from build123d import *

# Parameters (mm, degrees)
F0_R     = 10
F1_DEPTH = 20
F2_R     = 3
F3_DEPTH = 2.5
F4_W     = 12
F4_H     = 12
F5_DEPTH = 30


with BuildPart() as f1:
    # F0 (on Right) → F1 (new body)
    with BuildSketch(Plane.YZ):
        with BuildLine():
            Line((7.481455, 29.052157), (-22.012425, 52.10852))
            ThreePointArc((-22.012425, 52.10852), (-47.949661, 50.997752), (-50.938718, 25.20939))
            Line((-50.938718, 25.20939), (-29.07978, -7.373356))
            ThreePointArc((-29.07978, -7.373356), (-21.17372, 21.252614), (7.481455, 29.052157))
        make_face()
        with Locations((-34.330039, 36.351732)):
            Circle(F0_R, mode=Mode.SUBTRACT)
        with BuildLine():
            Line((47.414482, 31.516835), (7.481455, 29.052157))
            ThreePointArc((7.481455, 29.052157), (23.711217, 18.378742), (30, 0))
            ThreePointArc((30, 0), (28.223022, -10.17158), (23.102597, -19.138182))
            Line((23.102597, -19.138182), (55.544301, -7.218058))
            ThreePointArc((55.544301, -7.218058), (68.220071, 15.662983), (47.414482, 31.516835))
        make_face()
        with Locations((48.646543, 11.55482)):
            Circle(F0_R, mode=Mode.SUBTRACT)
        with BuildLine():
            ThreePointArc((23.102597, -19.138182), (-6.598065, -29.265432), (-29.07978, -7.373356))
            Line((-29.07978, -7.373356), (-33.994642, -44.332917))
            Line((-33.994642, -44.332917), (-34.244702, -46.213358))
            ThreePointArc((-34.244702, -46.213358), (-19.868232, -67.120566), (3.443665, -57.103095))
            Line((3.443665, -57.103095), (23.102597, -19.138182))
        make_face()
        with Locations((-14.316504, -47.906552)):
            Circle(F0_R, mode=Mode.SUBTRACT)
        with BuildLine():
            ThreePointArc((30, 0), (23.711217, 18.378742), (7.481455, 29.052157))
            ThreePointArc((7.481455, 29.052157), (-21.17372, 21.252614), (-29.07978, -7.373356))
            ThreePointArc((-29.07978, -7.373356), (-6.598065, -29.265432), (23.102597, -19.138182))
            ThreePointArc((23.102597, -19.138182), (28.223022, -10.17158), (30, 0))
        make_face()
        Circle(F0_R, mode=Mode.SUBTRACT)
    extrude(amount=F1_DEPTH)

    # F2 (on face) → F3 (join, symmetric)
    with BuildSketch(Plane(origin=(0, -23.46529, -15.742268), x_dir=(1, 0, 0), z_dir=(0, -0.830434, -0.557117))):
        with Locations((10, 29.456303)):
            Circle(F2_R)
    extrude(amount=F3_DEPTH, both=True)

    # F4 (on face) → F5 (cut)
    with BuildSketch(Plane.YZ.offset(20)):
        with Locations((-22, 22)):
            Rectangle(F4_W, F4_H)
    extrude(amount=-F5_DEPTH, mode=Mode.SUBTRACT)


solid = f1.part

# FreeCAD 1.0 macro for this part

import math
import FreeCAD as App
import Part
import Sketcher
from FreeCAD import Vector
Q = App.Units.Quantity

doc = App.newDocument("Part")
body = doc.addObject("PartDesign::Body", "Body")

# Sketch on YZ plane
sketch1 = body.newObject("Sketcher::SketchObject", "Sketch")
sketch1.AttachmentSupport = (doc.getObject("YZ_Plane"), [""])
sketch1.MapMode = "FlatFace"
sketch1.addGeometry(Part.LineSegment(Vector(7.5, 29.1, 0), Vector(-22, 52.1, 0)), False)
sketch1.addGeometry(Part.ArcOfCircle(Part.Circle(Vector(-34.3, 36.4, 0), Vector(0, 0, 1), 20), math.radians(52), math.radians(214)), False)
sketch1.addGeometry(Part.LineSegment(Vector(-50.9, 25.2, 0), Vector(-29.1, -7.4, 0)), False)
sketch1.addGeometry(Part.LineSegment(Vector(-29.1, -7.4, 0), Vector(-34, -44.3, 0)), False)
sketch1.addGeometry(Part.LineSegment(Vector(-34, -44.3, 0), Vector(-34.2, -46.2, 0)), False)
sketch1.addGeometry(Part.ArcOfCircle(Part.Circle(Vector(-14.3, -47.9, 0), Vector(0, 0, 1), 20), math.radians(175), math.radians(333)), False)
sketch1.addGeometry(Part.LineSegment(Vector(3.4, -57.1, 0), Vector(23.1, -19.1, 0)), False)
sketch1.addGeometry(Part.LineSegment(Vector(23.1, -19.1, 0), Vector(55.5, -7.2, 0)), False)
sketch1.addGeometry(Part.ArcOfCircle(Part.Circle(Vector(48.6, 11.6, 0), Vector(0, 0, 1), 20), math.radians(-70), math.radians(94)), False)
sketch1.addGeometry(Part.LineSegment(Vector(47.4, 31.5, 0), Vector(7.5, 29.1, 0)), False)
sketch1.addGeometry(Part.Circle(Vector(-14.3, -47.9, 0), Vector(0, 0, 1), 10), False)
sketch1.addGeometry(Part.Circle(Vector(0, 0, 0), Vector(0, 0, 1), 10), False)
sketch1.addGeometry(Part.Circle(Vector(-34.3, 36.4, 0), Vector(0, 0, 1), 10), False)
sketch1.addGeometry(Part.Circle(Vector(48.6, 11.6, 0), Vector(0, 0, 1), 10), False)
sketch1.addConstraint(Sketcher.Constraint("Tangent", 0, 2, 1, 1))
sketch1.addConstraint(Sketcher.Constraint("Tangent", 1, 2, 2, 1))
sketch1.addConstraint(Sketcher.Constraint("Coincident", 2, 2, 3, 1))
sketch1.addConstraint(Sketcher.Constraint("Coincident", 3, 2, 4, 1))
sketch1.addConstraint(Sketcher.Constraint("Coincident", 4, 2, 5, 1))
sketch1.addConstraint(Sketcher.Constraint("Tangent", 5, 2, 6, 1))
sketch1.addConstraint(Sketcher.Constraint("Coincident", 6, 2, 7, 1))
sketch1.addConstraint(Sketcher.Constraint("Tangent", 7, 2, 8, 1))
sketch1.addConstraint(Sketcher.Constraint("Tangent", 8, 2, 9, 1))
sketch1.addConstraint(Sketcher.Constraint("Coincident", 9, 2, 0, 1))
sketch1.addConstraint(Sketcher.Constraint("Coincident", 11, 3, -1, 1))
sketch1.addConstraint(Sketcher.Constraint("Coincident", 10, 3, 5, 3))
sketch1.addConstraint(Sketcher.Constraint("Coincident", 12, 3, 1, 3))
sketch1.addConstraint(Sketcher.Constraint("Coincident", 13, 3, 8, 3))
sketch1.addConstraint(Sketcher.Constraint("Equal", 1, 5))
sketch1.addConstraint(Sketcher.Constraint("Equal", 5, 8))
sketch1.addConstraint(Sketcher.Constraint("Equal", 10, 11))
sketch1.addConstraint(Sketcher.Constraint("Equal", 11, 12))
sketch1.addConstraint(Sketcher.Constraint("Equal", 12, 13))
sketch1.addConstraint(Sketcher.Constraint("Parallel", 3, 4))
sketch1.addConstraint(Sketcher.Constraint("Diameter", 10, Q("20 mm")))
sketch1.addConstraint(Sketcher.Constraint("Radius", 1, Q("20 mm")))
sketch1.addConstraint(Sketcher.Constraint("DistanceY", 4, 2, 2, 2, Q("38.840002 mm")))
sketch1.addConstraint(Sketcher.Constraint("DistanceY", 6, 2, 8, 3, Q("30.693002 mm")))
sketch1.addConstraint(Sketcher.Constraint("DistanceX", 4, 2, -1, 1, Q("34.244702 mm")))
sketch1.addConstraint(Sketcher.Constraint("DistanceX", -1, 1, 7, 2, Q("55.544301 mm")))
sketch1.addConstraint(Sketcher.Constraint("DistanceY", 8, 3, 0, 2, Q("40.5537 mm")))
sketch1.addConstraint(Sketcher.Constraint("DistanceX", 4, 2, 5, 3, Q("19.928198 mm")))
sketch1.addConstraint(Sketcher.Constraint("DistanceX", 10, 3, 6, 2, Q("37.419101 mm")))
sketch1.addConstraint(Sketcher.Constraint("Distance", 0, Q("37.436411 mm")))
sketch1.addConstraint(Sketcher.Constraint("DistanceX", 1, 3, -1, 1, Q("34.330039 mm")))
sketch1.addConstraint(Sketcher.Constraint("DistanceY", -1, 1, 8, 3, Q("11.55482 mm")))
sketch1.addConstraint(Sketcher.Constraint("DistanceY", 10, 3, -1, 1, Q("47.906552 mm")))
sketch1.addConstraint(Sketcher.Constraint("DistanceY", -1, 1, 12, 3, Q("36.351732 mm")))
sketch1.addConstraint(Sketcher.Constraint("DistanceX", 1, 2, -1, 1, Q("50.938718 mm")))
sketch1.addConstraint(Sketcher.Constraint("DistanceX", 3, 2, 5, 3, Q("19.678138 mm")))
pad1 = body.newObject("PartDesign::Pad", "Pad")
pad1.Profile = sketch1
pad1.Length = 20

# Sketch on an angled plane
sketch2 = body.newObject("Sketcher::SketchObject", "Sketch001")
sketch2.Placement = App.Placement(Vector(0, -23.46529, -15.742268), App.Rotation(Vector(1, 0, 0), Vector(0, -0.557117006, 0.830434008), Vector(0, -0.830434008, -0.557117006), "ZXY"))
sketch2.addGeometry(Part.Circle(Vector(10, 29.5, 0), Vector(0, 0, 1), 3), False)
sketch2.addConstraint(Sketcher.Constraint("Diameter", 0, Q("6 mm")))
sketch2.addConstraint(Sketcher.Constraint("DistanceX", -1, 1, 0, 3, Q("10 mm")))
sketch2.addConstraint(Sketcher.Constraint("DistanceY", -1, 1, 0, 3, Q("29.456303 mm")))
pad2 = body.newObject("PartDesign::Pad", "Pad001")
pad2.Profile = sketch2
pad2.Length = 5
pad2.Midplane = True

# Sketch on YZ plane
sketch3 = body.newObject("Sketcher::SketchObject", "Sketch002")
sketch3.AttachmentSupport = (doc.getObject("YZ_Plane"), [""])
sketch3.MapMode = "FlatFace"
sketch3.AttachmentOffset = App.Placement(Vector(0, 0, 20), App.Rotation())
sketch3.addGeometry(Part.LineSegment(Vector(-28, 28, 0), Vector(-28, 16, 0)), False)
sketch3.addGeometry(Part.LineSegment(Vector(-28, 16, 0), Vector(-16, 16, 0)), False)
sketch3.addGeometry(Part.LineSegment(Vector(-16, 16, 0), Vector(-16, 28, 0)), False)
sketch3.addGeometry(Part.LineSegment(Vector(-16, 28, 0), Vector(-28, 28, 0)), False)
sketch3.addConstraint(Sketcher.Constraint("Coincident", 0, 2, 1, 1))
sketch3.addConstraint(Sketcher.Constraint("Coincident", 1, 2, 2, 1))
sketch3.addConstraint(Sketcher.Constraint("Coincident", 2, 2, 3, 1))
sketch3.addConstraint(Sketcher.Constraint("Coincident", 3, 2, 0, 1))
sketch3.addConstraint(Sketcher.Constraint("Vertical", 0))
sketch3.addConstraint(Sketcher.Constraint("Horizontal", 1))
sketch3.addConstraint(Sketcher.Constraint("Vertical", 2))
sketch3.addConstraint(Sketcher.Constraint("Horizontal", 3))
sketch3.addConstraint(Sketcher.Constraint("Equal", 3, 0))
sketch3.addConstraint(Sketcher.Constraint("DistanceX", 1, 1, 1, 2, Q("12 mm")))
sketch3.addConstraint(Sketcher.Constraint("DistanceX", 0, 2, -1, 1, Q("28 mm")))
sketch3.addConstraint(Sketcher.Constraint("DistanceY", -1, 1, 0, 2, Q("16 mm")))
pocket1 = body.newObject("PartDesign::Pocket", "Pocket")
pocket1.Profile = sketch3
pocket1.Length = 30

doc.recompute()
